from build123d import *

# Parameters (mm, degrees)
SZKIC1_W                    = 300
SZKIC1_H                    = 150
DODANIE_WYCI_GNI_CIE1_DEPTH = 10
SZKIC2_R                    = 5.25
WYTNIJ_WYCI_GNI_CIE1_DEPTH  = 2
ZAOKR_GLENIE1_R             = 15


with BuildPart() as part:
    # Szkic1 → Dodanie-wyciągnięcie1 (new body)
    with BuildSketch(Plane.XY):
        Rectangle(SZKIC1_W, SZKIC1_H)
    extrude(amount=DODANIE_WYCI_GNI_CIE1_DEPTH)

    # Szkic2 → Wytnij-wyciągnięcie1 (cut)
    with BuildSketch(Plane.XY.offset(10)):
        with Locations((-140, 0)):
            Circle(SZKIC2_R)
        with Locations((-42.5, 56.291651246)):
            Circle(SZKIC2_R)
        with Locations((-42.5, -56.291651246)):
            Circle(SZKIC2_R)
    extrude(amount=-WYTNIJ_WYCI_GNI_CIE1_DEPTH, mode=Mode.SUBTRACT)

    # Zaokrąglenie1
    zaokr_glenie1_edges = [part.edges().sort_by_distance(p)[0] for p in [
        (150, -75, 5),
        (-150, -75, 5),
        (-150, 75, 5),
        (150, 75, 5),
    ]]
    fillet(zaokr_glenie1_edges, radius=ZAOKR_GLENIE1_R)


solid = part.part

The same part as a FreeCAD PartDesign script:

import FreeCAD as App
import Part
import Sketcher

V = App.Vector


def edges_at(feature, points):
    """Names of the edges that pass closest to the given points."""
    edges = feature.Shape.Edges
    near = lambda p: min(range(len(edges)), key=lambda i: edges[i].distToShape(Part.Vertex(*p))[0])
    return sorted({f"Edge{near(p) + 1}" for p in points})

doc = App.newDocument("Part")
body = doc.addObject("PartDesign::Body", "Body")

# Sketch on XY plane
sketch1 = body.newObject("Sketcher::SketchObject", "Sketch")
sketch1.AttachmentSupport = (doc.getObject("XY_Plane"), [""])
sketch1.MapMode = "FlatFace"
sketch1.addGeometry(Part.LineSegment(V(-150, 75, 0), V(-150, -75, 0)), False)
sketch1.addGeometry(Part.LineSegment(V(-150, -75, 0), V(150, -75, 0)), False)
sketch1.addGeometry(Part.LineSegment(V(150, -75, 0), V(150, 75, 0)), False)
sketch1.addGeometry(Part.LineSegment(V(150, 75, 0), V(-150, 75, 0)), False)
sketch1.addConstraint(Sketcher.Constraint("Coincident", 0, 2, 1, 1))
sketch1.addConstraint(Sketcher.Constraint("Coincident", 1, 2, 2, 1))
sketch1.addConstraint(Sketcher.Constraint("Coincident", 2, 2, 3, 1))
sketch1.addConstraint(Sketcher.Constraint("Coincident", 3, 2, 0, 1))
sketch1.addConstraint(Sketcher.Constraint("Vertical", 0))
sketch1.addConstraint(Sketcher.Constraint("Horizontal", 1))
sketch1.addConstraint(Sketcher.Constraint("Vertical", 2))
sketch1.addConstraint(Sketcher.Constraint("Horizontal", 3))
sketch1.addConstraint(Sketcher.Constraint("Symmetric", 0, 2, 2, 2, -1, 1))
sketch1.addConstraint(Sketcher.Constraint("DistanceX", 1, 1, 1, 2, 300.0))
sketch1.addConstraint(Sketcher.Constraint("DistanceY", 0, 2, 0, 1, 150.0))
pad1 = body.newObject("PartDesign::Pad", "Pad")
pad1.Profile = sketch1
pad1.Length = 10

# Sketch on XY plane
sketch2 = body.newObject("Sketcher::SketchObject", "Sketch001")
sketch2.AttachmentSupport = (doc.getObject("XY_Plane"), [""])
sketch2.MapMode = "FlatFace"
sketch2.AttachmentOffset = App.Placement(V(0, 0, 10), App.Rotation())
sketch2.addGeometry(Part.Circle(V(-140, 0, 0), V(0, 0, 1), 5.25), False)
sketch2.addGeometry(Part.Circle(V(-42.5, 56.291651, 0), V(0, 0, 1), 5.25), False)
sketch2.addGeometry(Part.Circle(V(-42.5, -56.291651, 0), V(0, 0, 1), 5.25), False)
sketch2.addConstraint(Sketcher.Constraint("Equal", 0, 1))
sketch2.addConstraint(Sketcher.Constraint("Equal", 1, 2))
sketch2.addConstraint(Sketcher.Constraint("Symmetric", 1, 3, 2, 3, -1))
sketch2.addConstraint(Sketcher.Constraint("PointOnObject", 0, 3, -1))
sketch2.addConstraint(Sketcher.Constraint("Diameter", 0, 10.5))
sketch2.addConstraint(Sketcher.Constraint("DistanceX", 0, 3, -1, 1, 140.0))
sketch2.addConstraint(Sketcher.Constraint("DistanceX", 1, 3, -1, 1, 42.5))
sketch2.addConstraint(Sketcher.Constraint("DistanceY", -1, 1, 1, 3, 56.291651))
pocket1 = body.newObject("PartDesign::Pocket", "Pocket")
pocket1.Profile = sketch2
pocket1.Length = 2
doc.recompute()

fillet = body.newObject("PartDesign::Fillet", "Fillet")
fillet.Base = (pocket1, edges_at(pocket1, [
    (150, -75, 5),
    (-150, -75, 5),
    (-150, 75, 5),
    (150, 75, 5),
]))
fillet.Radius = 15

doc.recompute()
